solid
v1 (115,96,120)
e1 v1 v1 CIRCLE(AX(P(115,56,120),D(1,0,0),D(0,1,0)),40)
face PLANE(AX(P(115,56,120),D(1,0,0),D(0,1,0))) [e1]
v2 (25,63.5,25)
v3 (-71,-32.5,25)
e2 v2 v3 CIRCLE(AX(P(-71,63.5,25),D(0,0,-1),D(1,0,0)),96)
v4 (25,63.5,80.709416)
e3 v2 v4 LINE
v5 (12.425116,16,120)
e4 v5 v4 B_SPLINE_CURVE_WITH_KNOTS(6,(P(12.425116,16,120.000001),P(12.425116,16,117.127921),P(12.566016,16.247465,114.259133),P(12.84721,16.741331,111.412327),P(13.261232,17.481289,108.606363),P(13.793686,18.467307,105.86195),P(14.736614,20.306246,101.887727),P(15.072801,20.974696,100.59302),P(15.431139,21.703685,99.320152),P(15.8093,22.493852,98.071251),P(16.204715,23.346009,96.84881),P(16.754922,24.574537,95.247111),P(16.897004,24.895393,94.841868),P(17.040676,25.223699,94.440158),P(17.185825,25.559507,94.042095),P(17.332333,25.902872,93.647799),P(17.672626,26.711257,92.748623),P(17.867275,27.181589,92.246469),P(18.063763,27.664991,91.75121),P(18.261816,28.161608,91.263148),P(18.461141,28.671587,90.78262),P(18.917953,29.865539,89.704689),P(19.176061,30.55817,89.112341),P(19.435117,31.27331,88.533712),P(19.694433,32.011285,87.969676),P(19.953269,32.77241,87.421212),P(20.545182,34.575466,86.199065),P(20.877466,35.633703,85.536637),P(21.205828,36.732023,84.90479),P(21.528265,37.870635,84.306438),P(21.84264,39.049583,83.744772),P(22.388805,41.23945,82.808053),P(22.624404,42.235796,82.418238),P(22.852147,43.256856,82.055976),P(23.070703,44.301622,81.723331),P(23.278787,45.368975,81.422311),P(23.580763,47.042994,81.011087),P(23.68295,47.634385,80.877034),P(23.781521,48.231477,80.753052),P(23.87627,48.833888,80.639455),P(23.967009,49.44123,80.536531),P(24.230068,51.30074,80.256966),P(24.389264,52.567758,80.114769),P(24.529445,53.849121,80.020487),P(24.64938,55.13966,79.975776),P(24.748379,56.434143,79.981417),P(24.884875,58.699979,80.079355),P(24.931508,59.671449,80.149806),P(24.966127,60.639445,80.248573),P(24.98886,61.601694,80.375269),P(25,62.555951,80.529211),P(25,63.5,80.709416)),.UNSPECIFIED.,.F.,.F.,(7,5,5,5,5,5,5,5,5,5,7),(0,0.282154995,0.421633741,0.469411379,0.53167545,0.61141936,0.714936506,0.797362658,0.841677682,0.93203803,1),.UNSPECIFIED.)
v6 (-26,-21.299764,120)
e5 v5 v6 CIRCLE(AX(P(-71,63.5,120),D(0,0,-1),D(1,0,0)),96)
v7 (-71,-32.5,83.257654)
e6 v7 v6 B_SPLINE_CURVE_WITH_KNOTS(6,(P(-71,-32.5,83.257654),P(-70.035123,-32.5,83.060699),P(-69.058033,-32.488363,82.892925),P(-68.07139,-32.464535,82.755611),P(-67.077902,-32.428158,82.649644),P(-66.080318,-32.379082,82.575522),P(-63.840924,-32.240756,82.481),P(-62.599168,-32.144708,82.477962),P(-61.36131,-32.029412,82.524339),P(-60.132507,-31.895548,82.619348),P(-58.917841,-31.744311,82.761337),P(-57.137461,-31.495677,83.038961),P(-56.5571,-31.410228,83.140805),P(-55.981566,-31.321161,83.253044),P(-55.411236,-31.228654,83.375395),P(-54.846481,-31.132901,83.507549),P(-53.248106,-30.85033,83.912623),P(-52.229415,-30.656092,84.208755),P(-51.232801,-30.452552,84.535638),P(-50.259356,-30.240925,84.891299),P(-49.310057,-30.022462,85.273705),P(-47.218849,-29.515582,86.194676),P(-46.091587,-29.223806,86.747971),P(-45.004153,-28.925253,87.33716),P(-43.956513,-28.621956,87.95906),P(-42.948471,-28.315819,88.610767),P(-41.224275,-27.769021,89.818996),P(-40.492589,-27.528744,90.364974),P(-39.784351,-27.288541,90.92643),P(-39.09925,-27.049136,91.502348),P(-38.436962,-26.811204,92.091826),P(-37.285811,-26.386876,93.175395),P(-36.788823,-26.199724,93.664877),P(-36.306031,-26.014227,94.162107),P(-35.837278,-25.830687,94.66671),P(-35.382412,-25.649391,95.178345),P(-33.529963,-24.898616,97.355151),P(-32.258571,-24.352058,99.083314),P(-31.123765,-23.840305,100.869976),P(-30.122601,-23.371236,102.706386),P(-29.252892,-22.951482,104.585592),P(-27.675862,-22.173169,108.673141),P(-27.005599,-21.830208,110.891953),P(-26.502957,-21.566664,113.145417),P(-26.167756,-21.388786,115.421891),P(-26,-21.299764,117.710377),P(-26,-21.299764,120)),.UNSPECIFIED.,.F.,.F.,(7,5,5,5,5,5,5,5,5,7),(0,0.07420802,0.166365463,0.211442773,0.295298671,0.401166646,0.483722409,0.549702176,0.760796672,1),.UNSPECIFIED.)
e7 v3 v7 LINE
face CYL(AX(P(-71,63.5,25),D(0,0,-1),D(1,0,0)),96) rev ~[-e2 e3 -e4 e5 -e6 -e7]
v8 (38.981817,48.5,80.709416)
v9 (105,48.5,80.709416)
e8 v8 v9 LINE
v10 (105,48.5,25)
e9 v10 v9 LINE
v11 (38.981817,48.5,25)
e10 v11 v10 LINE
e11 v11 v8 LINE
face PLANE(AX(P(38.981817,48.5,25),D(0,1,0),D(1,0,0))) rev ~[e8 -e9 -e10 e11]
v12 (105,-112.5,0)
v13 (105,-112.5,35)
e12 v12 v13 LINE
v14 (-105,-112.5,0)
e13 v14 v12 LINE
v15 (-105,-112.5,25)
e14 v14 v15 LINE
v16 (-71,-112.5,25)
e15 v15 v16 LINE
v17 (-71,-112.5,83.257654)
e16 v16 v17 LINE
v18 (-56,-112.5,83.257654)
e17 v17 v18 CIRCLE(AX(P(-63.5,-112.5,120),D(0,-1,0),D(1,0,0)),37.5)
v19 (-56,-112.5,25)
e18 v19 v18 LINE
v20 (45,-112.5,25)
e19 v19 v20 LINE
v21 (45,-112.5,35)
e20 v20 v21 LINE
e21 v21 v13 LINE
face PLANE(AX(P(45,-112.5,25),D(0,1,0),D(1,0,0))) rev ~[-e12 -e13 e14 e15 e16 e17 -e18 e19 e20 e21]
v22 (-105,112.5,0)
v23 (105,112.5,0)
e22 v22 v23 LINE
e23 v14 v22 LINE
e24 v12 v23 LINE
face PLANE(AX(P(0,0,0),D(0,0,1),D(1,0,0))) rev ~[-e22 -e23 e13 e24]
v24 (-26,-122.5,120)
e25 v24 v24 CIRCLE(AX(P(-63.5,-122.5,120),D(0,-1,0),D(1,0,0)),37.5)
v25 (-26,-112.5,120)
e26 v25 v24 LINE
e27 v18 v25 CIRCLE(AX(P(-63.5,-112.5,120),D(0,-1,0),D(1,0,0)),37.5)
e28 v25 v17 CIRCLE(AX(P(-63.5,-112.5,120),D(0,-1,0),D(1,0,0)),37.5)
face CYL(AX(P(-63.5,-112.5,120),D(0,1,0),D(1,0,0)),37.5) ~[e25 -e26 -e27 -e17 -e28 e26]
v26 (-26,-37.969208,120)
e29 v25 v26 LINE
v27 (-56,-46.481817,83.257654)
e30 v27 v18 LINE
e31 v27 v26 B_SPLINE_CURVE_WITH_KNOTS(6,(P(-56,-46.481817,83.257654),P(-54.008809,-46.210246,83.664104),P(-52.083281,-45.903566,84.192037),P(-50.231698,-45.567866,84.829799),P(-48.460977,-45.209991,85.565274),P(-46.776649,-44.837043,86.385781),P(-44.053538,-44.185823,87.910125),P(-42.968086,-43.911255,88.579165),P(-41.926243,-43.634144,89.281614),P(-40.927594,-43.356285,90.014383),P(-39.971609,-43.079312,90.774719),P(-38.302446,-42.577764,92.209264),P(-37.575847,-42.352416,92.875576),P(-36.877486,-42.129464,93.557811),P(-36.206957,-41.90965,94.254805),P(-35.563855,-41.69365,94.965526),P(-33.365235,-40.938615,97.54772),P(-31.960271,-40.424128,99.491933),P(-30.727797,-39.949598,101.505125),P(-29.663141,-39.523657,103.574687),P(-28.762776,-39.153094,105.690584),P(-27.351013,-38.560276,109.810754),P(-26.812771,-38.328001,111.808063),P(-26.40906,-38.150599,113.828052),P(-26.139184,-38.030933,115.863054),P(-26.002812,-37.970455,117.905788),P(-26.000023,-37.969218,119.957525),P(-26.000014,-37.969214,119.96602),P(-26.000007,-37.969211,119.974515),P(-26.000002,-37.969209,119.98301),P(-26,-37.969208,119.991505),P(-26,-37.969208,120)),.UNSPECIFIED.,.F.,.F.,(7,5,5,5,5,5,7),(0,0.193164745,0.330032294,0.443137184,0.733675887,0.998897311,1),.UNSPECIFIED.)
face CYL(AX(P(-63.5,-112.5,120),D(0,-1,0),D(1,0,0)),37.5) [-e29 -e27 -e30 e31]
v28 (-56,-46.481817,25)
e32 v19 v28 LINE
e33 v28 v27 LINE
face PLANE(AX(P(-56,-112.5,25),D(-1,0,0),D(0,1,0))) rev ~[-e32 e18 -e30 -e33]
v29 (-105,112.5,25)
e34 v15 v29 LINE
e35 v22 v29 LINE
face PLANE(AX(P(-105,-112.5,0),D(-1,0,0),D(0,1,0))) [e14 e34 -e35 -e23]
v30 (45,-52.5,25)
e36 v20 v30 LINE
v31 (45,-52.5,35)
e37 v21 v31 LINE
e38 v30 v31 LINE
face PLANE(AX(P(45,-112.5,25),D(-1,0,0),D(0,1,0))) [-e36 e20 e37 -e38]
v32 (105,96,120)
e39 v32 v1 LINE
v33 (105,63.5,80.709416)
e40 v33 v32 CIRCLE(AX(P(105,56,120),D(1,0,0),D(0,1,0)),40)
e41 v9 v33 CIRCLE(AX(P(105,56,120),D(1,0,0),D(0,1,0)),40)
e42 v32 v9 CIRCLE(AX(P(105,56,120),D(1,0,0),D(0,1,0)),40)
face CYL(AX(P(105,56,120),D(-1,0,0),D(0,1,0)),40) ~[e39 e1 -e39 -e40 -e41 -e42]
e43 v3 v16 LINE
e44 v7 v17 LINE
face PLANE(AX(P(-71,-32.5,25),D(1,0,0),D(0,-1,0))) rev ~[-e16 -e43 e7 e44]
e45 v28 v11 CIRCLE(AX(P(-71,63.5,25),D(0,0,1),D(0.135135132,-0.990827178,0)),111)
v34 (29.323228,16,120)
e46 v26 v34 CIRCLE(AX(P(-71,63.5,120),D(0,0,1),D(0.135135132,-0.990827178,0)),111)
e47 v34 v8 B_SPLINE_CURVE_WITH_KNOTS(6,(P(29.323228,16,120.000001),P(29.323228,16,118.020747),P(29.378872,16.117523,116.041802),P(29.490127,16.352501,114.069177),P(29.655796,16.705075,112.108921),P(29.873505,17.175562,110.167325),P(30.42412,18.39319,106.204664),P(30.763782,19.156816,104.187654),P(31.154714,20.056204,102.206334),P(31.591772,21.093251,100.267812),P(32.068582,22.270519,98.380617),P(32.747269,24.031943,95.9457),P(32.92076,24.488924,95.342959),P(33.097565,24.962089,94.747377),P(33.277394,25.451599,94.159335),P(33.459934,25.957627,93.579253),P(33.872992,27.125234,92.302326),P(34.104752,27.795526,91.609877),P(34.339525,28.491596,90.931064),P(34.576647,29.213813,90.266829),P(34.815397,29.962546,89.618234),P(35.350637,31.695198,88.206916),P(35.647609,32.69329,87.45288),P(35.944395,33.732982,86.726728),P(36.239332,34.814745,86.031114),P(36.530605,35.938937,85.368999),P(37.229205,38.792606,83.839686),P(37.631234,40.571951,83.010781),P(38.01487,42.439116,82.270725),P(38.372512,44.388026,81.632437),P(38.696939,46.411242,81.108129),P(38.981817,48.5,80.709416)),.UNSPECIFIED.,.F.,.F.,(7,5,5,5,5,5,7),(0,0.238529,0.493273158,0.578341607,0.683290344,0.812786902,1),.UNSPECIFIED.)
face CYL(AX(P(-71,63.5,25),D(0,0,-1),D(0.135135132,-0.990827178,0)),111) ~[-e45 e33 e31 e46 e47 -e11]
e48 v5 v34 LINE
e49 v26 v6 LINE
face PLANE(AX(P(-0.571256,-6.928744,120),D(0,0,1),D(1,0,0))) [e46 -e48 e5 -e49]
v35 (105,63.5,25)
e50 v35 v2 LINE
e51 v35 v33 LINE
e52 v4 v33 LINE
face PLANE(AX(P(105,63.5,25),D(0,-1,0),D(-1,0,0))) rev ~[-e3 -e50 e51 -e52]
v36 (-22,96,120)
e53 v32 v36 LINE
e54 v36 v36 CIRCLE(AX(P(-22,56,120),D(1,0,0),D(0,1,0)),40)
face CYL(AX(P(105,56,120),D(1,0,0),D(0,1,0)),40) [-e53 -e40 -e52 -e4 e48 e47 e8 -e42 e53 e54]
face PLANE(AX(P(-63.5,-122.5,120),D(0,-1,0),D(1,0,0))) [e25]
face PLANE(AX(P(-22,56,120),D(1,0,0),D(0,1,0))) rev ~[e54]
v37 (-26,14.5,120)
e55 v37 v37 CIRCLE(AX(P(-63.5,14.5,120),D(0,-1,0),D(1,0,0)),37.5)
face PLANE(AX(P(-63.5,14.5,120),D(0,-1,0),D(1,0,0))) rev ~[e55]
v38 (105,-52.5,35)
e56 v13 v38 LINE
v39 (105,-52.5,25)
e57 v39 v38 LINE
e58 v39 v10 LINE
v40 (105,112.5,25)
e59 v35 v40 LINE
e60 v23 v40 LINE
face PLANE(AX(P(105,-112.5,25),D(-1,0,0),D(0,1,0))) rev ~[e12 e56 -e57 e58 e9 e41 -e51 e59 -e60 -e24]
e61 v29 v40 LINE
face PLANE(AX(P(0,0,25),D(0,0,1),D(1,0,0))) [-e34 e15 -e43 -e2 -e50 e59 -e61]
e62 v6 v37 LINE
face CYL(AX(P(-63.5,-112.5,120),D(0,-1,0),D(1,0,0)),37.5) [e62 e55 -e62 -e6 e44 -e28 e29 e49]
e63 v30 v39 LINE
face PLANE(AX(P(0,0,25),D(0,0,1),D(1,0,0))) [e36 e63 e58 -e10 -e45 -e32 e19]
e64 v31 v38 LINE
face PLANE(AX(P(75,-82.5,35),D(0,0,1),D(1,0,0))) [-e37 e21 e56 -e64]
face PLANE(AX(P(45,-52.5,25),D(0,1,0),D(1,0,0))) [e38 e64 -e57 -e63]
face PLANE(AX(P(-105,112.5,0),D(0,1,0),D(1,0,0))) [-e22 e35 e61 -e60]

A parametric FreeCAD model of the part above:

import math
import FreeCAD as App
import Part
import Sketcher
from FreeCAD import Vector
Q = App.Units.Quantity

doc = App.newDocument("Part")
body = doc.addObject("PartDesign::Body", "Body")

# Sketch on XY plane
sketch1 = doc.addObject("Sketcher::SketchObject", "Sketch")
body.addObject(sketch1)
sketch1.AttachmentSupport = (doc.XY_Plane, [""])
sketch1.MapMode = "FlatFace"
sketch1.addGeometry([
    Part.LineSegment(Vector(-105, 112, 0), Vector(-105, -112, 0)),
    Part.LineSegment(Vector(-105, -112, 0), Vector(105, -112, 0)),
    Part.LineSegment(Vector(105, -112, 0), Vector(105, 112, 0)),
    Part.LineSegment(Vector(105, 112, 0), Vector(-105, 112, 0)),
], False)
sketch1.addConstraint([
    Sketcher.Constraint("Coincident", 0, 2, 1, 1),
    Sketcher.Constraint("Coincident", 1, 2, 2, 1),
    Sketcher.Constraint("Coincident", 2, 2, 3, 1),
    Sketcher.Constraint("Coincident", 3, 2, 0, 1),
    Sketcher.Constraint("Vertical", 0),
    Sketcher.Constraint("Horizontal", 1),
    Sketcher.Constraint("Vertical", 2),
    Sketcher.Constraint("Horizontal", 3),
    Sketcher.Constraint("Symmetric", 0, 2, 2, 2, -1, 1),
    Sketcher.Constraint("DistanceX", 1, 1, 1, 2, Q("210 mm")),
    Sketcher.Constraint("DistanceY", 0, 2, 0, 1, Q("225 mm")),
])
pad1 = doc.addObject("PartDesign::Pad", "Pad")
body.addObject(pad1)
pad1.Profile = sketch1
pad1.Length = 25

# Sketch on XY plane
sketch2 = doc.addObject("Sketcher::SketchObject", "Sketch001")
body.addObject(sketch2)
sketch2.AttachmentSupport = (doc.XY_Plane, [""])
sketch2.MapMode = "FlatFace"
sketch2.AttachmentOffset = App.Placement(Vector(0, 0, 25), App.Rotation())
sketch2.addGeometry([
    Part.LineSegment(Vector(-71, -32, 0), Vector(-71, -112, 0)),  # 0
    Part.LineSegment(Vector(-71, -112, 0), Vector(-56, -112, 0)),  # 1
    Part.LineSegment(Vector(-56, -112, 0), Vector(-56, -46, 0)),  # 2
    Part.ArcOfCircle(Part.Circle(Vector(-71, 63, 0), Vector(0, 0, 1), 111), math.radians(-82), math.radians(-8)),  # 3
    Part.LineSegment(Vector(39, 48, 0), Vector(105, 48, 0)),  # 4
    Part.LineSegment(Vector(105, 48, 0), Vector(105, 64, 0)),  # 5
    Part.LineSegment(Vector(105, 64, 0), Vector(25, 64, 0)),  # 6
    Part.ArcOfCircle(Part.Circle(Vector(-71, 63, 0), Vector(0, 0, 1), 96), math.radians(-90), math.radians(0)),  # 7
], False)
sketch2.addConstraint([
    Sketcher.Constraint("Coincident", 0, 2, 1, 1),
    Sketcher.Constraint("Coincident", 1, 2, 2, 1),
    Sketcher.Constraint("Coincident", 2, 2, 3, 1),
    Sketcher.Constraint("Coincident", 3, 2, 4, 1),
    Sketcher.Constraint("Coincident", 4, 2, 5, 1),
    Sketcher.Constraint("Coincident", 5, 2, 6, 1),
    Sketcher.Constraint("Coincident", 6, 2, 7, 2),
    Sketcher.Constraint("Coincident", 7, 1, 0, 1),
    Sketcher.Constraint("Vertical", 0),
    Sketcher.Constraint("Horizontal", 1),
    Sketcher.Constraint("Vertical", 2),
    Sketcher.Constraint("Horizontal", 4),
    Sketcher.Constraint("Vertical", 5),
    Sketcher.Constraint("Horizontal", 6),
    Sketcher.Constraint("Coincident", 7, 3, 3, 3),
    Sketcher.Constraint("Horizontal", 7, 3, 5, 2),
    Sketcher.Constraint("Vertical", 7, 3, 0, 2),
    Sketcher.Constraint("Equal", 6, 0),
    Sketcher.Constraint("Equal", 4, 2),
    Sketcher.Constraint("Radius", 3, Q("111 mm")),
    Sketcher.Constraint("Radius", 7, Q("96 mm")),
    Sketcher.Constraint("DistanceX", 1, 1, 1, 2, Q("15 mm")),
    Sketcher.Constraint("DistanceX", 6, 2, 6, 1, Q("80 mm")),
    Sketcher.Constraint("DistanceX", 3, 3, -1, 1, Q("71 mm")),
    Sketcher.Constraint("DistanceY", -1, 1, 3, 3, Q("63.5 mm")),
])
pad2 = doc.addObject("PartDesign::Pad", "Pad001")
body.addObject(pad2)
pad2.Profile = sketch2
pad2.Length = 95

# Sketch on XZ plane
sketch3 = doc.addObject("Sketcher::SketchObject", "Sketch002")
body.addObject(sketch3)
sketch3.AttachmentSupport = (doc.XZ_Plane, [""])
sketch3.MapMode = "FlatFace"
sketch3.AttachmentOffset = App.Placement(Vector(0, 0, 112.5), App.Rotation())
sketch3.addGeometry(Part.Circle(Vector(-64, 120, 0), Vector(0, 0, 1), 38), False)
sketch3.addConstraint([
    Sketcher.Constraint("Diameter", 0, Q("75 mm")),
    Sketcher.Constraint("DistanceY", -1, 1, 0, 3, Q("120 mm")),
    Sketcher.Constraint("DistanceX", 0, 3, -1, 1, Q("63.5 mm")),
])
pad3 = doc.addObject("PartDesign::Pad", "Pad002")
body.addObject(pad3)
pad3.Profile = sketch3
pad3.Type = "TwoLengths"
pad3.Length = 10
pad3.Length2 = 127

# Sketch on YZ plane
sketch4 = doc.addObject("Sketcher::SketchObject", "Sketch003")
body.addObject(sketch4)
sketch4.AttachmentSupport = (doc.YZ_Plane, [""])
sketch4.MapMode = "FlatFace"
sketch4.AttachmentOffset = App.Placement(Vector(0, 0, 105), App.Rotation())
sketch4.addGeometry(Part.Circle(Vector(56, 120, 0), Vector(0, 0, 1), 40), False)
sketch4.addConstraint([
    Sketcher.Constraint("Diameter", 0, Q("80 mm")),
    Sketcher.Constraint("DistanceX", -1, 1, 0, 3, Q("56 mm")),
    Sketcher.Constraint("DistanceY", -1, 1, 0, 3, Q("120 mm")),
])
pad4 = doc.addObject("PartDesign::Pad", "Pad003")
body.addObject(pad4)
pad4.Profile = sketch4
pad4.Type = "TwoLengths"
pad4.Length = 10
pad4.Length2 = 127

# Sketch on XY plane
sketch5 = doc.addObject("Sketcher::SketchObject", "Sketch004")
body.addObject(sketch5)
sketch5.AttachmentSupport = (doc.XY_Plane, [""])
sketch5.MapMode = "FlatFace"
sketch5.AttachmentOffset = App.Placement(Vector(0, 0, 25), App.Rotation())
sketch5.addGeometry([
    Part.LineSegment(Vector(45, -52, 0), Vector(45, -112, 0)),
    Part.LineSegment(Vector(45, -112, 0), Vector(105, -112, 0)),
    Part.LineSegment(Vector(105, -112, 0), Vector(105, -52, 0)),
    Part.LineSegment(Vector(105, -52, 0), Vector(45, -52, 0)),
], False)
sketch5.addConstraint([
    Sketcher.Constraint("Coincident", 0, 2, 1, 1),
    Sketcher.Constraint("Coincident", 1, 2, 2, 1),
    Sketcher.Constraint("Coincident", 2, 2, 3, 1),
    Sketcher.Constraint("Coincident", 3, 2, 0, 1),
    Sketcher.Constraint("Vertical", 0),
    Sketcher.Constraint("Horizontal", 1),
    Sketcher.Constraint("Vertical", 2),
    Sketcher.Constraint("Horizontal", 3),
    Sketcher.Constraint("Equal", 3, 0),
    Sketcher.Constraint("DistanceX", 1, 1, 1, 2, Q("60 mm")),
    Sketcher.Constraint("DistanceX", -1, 1, 0, 2, Q("45 mm")),
    Sketcher.Constraint("DistanceY", 0, 2, -1, 1, Q("112.5 mm")),
])
pad5 = doc.addObject("PartDesign::Pad", "Pad004")
body.addObject(pad5)
pad5.Profile = sketch5
pad5.Length = 10

doc.recompute()
